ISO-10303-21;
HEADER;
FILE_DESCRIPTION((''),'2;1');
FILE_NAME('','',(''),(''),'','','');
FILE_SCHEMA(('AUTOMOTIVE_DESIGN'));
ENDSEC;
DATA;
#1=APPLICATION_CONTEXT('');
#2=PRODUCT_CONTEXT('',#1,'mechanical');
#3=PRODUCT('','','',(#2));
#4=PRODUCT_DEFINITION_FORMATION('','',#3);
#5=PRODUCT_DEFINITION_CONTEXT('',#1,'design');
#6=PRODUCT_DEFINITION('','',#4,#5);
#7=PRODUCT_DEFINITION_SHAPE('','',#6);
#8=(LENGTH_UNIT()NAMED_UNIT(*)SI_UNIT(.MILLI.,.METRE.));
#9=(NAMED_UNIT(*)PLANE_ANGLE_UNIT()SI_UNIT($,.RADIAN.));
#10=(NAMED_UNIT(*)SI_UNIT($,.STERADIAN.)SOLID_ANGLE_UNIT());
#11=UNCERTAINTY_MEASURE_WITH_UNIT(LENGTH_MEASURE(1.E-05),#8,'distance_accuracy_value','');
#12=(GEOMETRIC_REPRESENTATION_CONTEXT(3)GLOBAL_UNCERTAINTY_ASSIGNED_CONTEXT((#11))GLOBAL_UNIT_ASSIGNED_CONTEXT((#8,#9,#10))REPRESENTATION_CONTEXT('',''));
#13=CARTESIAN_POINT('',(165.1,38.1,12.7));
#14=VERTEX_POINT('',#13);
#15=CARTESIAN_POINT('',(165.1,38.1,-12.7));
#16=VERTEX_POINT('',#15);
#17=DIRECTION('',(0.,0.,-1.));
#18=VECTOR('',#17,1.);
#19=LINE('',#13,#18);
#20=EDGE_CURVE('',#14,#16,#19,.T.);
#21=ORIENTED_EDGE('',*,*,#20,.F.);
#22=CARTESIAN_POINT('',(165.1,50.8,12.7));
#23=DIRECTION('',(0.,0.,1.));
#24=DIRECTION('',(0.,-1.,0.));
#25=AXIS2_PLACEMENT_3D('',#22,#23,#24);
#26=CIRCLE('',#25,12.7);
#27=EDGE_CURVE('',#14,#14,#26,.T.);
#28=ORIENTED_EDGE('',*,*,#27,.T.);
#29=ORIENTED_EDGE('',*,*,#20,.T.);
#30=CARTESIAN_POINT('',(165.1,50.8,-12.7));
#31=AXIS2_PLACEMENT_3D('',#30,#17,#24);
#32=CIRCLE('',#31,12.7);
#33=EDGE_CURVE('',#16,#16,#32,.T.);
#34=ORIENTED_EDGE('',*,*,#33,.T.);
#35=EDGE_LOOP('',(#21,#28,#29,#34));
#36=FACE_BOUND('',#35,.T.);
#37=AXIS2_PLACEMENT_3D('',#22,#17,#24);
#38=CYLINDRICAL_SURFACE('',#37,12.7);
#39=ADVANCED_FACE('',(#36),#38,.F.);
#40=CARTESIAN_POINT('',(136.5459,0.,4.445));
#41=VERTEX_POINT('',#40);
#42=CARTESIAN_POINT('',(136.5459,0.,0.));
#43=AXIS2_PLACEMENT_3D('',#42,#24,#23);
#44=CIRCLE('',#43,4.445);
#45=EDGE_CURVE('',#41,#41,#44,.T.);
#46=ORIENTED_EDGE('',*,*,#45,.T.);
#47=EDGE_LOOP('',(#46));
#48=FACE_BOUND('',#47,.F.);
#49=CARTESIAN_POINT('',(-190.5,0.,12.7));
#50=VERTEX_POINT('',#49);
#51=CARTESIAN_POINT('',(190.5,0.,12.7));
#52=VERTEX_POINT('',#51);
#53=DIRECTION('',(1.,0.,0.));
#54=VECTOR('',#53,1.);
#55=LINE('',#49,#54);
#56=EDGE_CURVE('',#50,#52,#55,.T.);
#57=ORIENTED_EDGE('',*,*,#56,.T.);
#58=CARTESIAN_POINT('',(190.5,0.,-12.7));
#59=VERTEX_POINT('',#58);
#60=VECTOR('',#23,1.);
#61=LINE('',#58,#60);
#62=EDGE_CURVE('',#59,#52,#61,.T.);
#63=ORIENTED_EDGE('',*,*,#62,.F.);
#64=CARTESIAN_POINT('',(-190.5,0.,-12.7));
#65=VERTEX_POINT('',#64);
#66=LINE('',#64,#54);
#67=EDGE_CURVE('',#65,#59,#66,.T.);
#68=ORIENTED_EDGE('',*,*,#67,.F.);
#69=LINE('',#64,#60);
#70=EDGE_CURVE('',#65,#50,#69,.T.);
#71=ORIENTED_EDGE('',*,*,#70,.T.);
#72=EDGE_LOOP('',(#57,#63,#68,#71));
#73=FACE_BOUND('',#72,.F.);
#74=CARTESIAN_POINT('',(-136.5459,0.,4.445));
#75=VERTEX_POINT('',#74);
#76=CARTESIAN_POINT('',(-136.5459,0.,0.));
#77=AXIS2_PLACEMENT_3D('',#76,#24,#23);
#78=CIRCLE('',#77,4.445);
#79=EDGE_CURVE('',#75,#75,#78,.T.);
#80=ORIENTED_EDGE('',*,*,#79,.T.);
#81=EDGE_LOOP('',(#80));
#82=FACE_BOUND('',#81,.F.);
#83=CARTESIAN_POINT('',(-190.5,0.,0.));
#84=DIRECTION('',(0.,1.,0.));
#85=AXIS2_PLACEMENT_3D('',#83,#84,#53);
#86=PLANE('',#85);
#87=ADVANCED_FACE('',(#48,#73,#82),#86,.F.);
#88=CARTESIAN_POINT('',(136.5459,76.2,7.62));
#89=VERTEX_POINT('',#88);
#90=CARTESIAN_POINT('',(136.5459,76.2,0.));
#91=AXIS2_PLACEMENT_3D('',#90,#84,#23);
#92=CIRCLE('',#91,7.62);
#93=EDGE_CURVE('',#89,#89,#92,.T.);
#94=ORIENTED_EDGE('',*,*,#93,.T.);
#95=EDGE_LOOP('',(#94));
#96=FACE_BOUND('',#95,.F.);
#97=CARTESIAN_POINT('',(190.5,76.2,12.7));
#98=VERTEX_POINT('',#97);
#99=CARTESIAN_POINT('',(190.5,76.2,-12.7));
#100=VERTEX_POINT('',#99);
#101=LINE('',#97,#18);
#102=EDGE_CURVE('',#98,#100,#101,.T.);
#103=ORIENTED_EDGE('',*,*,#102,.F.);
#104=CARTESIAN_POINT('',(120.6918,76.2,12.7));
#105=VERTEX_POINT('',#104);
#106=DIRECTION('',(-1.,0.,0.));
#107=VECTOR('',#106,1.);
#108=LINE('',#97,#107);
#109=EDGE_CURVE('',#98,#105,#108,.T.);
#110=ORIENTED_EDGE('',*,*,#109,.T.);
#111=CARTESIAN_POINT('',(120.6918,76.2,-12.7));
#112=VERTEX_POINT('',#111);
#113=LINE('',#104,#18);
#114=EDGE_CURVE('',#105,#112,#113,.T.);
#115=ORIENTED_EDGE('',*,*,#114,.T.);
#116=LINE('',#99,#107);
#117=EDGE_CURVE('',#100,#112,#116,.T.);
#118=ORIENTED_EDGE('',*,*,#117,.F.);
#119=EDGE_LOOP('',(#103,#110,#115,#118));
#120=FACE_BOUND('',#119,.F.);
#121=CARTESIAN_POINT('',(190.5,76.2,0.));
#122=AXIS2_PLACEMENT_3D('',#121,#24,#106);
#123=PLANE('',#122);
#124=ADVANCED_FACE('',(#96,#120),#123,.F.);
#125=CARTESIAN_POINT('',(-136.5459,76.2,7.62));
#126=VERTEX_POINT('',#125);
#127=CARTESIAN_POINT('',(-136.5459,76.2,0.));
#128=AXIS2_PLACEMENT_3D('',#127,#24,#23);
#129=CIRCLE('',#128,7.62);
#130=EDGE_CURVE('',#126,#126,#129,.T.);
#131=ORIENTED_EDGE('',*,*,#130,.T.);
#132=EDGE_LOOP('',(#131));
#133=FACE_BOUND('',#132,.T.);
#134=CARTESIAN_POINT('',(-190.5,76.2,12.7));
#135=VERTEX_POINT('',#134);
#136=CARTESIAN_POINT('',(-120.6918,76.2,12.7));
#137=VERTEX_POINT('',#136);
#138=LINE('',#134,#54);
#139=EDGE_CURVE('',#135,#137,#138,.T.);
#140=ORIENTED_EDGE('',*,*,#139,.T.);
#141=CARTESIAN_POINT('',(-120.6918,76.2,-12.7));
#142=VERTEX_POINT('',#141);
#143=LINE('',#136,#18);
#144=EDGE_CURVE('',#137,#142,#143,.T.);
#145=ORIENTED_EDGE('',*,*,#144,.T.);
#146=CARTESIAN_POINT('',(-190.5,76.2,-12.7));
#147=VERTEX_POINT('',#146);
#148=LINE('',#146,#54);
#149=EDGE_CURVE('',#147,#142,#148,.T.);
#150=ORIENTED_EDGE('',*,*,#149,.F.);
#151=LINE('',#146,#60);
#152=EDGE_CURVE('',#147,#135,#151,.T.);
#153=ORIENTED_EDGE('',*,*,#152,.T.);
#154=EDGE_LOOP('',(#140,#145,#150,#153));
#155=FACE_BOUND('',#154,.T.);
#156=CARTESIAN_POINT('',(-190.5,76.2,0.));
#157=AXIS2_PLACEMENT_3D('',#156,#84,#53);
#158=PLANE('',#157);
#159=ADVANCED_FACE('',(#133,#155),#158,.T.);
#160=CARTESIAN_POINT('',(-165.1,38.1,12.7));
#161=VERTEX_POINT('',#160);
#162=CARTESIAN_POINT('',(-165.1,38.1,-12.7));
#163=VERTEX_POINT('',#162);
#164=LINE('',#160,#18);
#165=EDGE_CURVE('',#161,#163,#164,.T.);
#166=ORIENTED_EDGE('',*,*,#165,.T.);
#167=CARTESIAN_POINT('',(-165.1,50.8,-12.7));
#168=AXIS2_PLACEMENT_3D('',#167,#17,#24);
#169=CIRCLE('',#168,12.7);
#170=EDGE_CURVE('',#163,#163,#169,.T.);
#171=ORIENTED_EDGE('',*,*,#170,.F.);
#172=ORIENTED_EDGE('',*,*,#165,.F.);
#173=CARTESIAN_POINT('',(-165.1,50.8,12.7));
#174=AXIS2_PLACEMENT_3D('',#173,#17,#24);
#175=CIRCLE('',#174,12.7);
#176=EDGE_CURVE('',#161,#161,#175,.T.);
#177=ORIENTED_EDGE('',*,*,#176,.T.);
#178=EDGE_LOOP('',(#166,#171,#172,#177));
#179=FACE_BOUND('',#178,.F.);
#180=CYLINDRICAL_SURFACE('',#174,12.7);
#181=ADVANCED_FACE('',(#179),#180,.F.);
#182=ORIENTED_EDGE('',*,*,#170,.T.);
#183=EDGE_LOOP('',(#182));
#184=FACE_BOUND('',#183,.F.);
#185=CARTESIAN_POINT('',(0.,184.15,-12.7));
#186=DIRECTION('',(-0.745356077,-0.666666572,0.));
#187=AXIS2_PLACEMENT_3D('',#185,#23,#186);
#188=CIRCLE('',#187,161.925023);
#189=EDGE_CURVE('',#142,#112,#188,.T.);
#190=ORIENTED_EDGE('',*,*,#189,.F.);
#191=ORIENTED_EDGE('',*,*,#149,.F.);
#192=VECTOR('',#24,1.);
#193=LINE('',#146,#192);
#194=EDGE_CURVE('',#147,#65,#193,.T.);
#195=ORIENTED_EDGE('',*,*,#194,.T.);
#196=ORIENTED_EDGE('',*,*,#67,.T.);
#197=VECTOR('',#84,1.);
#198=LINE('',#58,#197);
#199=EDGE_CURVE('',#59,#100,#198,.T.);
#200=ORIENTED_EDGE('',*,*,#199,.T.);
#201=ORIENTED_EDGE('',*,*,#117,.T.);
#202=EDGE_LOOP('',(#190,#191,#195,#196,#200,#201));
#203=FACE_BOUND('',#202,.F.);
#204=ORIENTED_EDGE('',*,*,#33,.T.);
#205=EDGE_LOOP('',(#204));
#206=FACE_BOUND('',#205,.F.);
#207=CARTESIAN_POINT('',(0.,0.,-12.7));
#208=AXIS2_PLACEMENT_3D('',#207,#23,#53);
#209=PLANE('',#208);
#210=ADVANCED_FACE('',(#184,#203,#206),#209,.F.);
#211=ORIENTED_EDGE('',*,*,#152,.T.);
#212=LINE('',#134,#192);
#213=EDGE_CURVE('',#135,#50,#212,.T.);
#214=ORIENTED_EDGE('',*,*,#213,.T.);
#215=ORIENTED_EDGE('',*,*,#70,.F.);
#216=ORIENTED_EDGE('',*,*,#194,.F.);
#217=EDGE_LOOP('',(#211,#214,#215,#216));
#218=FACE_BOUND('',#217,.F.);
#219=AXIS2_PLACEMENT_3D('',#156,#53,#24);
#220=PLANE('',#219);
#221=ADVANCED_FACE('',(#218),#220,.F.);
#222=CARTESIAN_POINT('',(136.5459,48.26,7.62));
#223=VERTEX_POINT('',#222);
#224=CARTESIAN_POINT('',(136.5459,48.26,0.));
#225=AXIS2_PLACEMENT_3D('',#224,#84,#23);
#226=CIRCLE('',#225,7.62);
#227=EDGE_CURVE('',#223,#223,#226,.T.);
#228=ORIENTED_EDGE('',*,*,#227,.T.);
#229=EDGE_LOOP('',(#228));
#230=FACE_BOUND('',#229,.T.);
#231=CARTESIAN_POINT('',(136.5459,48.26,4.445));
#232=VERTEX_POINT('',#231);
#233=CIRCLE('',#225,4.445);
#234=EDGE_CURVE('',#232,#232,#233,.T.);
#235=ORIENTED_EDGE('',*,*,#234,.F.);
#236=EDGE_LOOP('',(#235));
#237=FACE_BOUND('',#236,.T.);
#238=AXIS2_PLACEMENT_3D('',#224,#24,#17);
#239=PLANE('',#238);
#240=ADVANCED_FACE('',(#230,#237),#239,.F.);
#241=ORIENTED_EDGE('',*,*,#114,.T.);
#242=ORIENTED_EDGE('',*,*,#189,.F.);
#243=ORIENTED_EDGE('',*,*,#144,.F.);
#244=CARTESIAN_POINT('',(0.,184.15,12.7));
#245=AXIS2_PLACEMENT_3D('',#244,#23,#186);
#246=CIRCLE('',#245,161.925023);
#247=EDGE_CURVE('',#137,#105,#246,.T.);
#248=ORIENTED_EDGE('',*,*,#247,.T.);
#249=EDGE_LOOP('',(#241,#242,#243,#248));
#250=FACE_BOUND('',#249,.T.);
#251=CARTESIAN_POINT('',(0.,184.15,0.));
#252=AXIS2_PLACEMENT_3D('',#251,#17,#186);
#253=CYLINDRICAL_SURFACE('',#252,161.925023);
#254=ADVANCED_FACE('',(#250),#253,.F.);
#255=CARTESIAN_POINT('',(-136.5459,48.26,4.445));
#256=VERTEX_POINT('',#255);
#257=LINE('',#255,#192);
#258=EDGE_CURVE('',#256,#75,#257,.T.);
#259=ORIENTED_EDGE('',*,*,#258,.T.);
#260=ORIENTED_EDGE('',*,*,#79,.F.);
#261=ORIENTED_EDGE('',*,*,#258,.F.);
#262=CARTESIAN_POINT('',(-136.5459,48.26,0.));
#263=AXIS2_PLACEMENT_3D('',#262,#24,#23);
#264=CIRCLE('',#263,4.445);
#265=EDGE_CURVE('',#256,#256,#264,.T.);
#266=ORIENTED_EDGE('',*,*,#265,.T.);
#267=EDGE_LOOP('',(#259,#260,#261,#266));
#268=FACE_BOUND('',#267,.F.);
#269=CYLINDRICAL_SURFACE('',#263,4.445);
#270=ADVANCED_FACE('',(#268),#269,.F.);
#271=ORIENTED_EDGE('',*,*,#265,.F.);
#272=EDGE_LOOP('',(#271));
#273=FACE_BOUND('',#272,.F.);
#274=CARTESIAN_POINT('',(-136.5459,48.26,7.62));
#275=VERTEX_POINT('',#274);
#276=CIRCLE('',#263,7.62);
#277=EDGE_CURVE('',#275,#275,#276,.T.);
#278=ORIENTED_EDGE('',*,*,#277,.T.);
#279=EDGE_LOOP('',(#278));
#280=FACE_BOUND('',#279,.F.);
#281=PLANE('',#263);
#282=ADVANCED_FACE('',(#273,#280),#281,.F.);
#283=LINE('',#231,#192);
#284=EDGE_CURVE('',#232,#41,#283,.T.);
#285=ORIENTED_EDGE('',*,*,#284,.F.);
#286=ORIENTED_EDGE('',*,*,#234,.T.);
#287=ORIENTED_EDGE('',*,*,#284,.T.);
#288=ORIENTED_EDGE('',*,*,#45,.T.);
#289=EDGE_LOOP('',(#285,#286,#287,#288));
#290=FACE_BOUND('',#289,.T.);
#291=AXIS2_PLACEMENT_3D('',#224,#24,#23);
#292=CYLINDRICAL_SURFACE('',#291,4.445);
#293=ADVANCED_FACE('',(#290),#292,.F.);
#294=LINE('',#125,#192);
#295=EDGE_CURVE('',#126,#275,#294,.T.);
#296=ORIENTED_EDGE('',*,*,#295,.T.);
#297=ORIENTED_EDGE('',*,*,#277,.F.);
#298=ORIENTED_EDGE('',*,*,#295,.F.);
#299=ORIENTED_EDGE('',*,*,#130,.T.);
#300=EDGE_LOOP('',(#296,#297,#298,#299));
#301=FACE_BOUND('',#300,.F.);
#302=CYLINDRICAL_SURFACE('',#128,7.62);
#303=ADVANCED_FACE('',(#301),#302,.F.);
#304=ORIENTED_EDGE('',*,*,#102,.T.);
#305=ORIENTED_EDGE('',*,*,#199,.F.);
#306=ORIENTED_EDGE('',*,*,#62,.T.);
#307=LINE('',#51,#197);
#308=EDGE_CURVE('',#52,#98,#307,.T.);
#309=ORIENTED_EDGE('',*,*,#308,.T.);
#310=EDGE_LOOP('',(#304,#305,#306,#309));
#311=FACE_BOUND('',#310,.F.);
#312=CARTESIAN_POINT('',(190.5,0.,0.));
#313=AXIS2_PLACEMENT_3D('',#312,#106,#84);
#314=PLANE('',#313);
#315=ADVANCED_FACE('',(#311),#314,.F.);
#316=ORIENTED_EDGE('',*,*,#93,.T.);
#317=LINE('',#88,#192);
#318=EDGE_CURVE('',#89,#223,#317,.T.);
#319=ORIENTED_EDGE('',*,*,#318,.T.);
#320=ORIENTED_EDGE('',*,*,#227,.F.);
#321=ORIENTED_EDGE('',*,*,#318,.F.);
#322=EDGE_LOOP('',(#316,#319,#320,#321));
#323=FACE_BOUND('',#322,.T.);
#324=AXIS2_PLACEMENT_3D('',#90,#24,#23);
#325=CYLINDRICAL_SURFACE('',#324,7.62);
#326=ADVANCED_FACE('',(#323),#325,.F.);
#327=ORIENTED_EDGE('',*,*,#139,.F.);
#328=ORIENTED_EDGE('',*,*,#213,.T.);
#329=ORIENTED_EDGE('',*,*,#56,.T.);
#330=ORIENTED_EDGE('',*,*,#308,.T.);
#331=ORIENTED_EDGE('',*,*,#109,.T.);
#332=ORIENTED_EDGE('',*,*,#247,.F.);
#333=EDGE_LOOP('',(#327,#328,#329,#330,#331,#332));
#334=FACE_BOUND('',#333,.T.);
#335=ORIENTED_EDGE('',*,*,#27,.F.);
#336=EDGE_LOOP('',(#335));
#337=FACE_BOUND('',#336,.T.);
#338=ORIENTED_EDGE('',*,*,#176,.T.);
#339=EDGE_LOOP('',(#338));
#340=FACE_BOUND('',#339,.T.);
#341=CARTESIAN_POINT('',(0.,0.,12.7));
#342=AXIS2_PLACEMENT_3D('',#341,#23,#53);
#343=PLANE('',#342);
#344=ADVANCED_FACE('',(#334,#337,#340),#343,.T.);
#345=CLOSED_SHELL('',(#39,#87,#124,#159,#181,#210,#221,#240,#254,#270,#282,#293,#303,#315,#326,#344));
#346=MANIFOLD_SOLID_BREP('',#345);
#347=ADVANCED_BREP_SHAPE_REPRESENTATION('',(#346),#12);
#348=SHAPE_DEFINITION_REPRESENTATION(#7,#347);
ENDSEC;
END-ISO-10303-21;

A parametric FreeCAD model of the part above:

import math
import FreeCAD as App
import Part
import Sketcher
Q = App.Units.Quantity

doc = App.newDocument("Part")
body = doc.addObject("PartDesign::Body", "Body")

# Sketch on XY plane
sketch1 = doc.addObject("Sketcher::SketchObject", "Sketch")
body.addObject(sketch1)
sketch1.AttachmentSupport = (doc.XY_Plane, [""])
sketch1.MapMode = "FlatFace"
sketch1.addGeometry([
    Part.LineSegment(App.Vector(-121, 76, 0), App.Vector(-190, 76, 0)),  # 0
    Part.LineSegment(App.Vector(-190, 76, 0), App.Vector(-190, 0, 0)),  # 1
    Part.LineSegment(App.Vector(-190, 0, 0), App.Vector(190, 0, 0)),  # 2
    Part.LineSegment(App.Vector(190, 0, 0), App.Vector(190, 76, 0)),  # 3
    Part.LineSegment(App.Vector(190, 76, 0), App.Vector(121, 76, 0)),  # 4
    Part.ArcOfCircle(Part.Circle(App.Vector(0, 184, 0), App.Vector(0, 0, 1), 162), math.radians(-138), math.radians(-42)),  # 5
], False)
sketch1.addConstraint([
    Sketcher.Constraint("Coincident", 0, 2, 1, 1),
    Sketcher.Constraint("Coincident", 1, 2, 2, 1),
    Sketcher.Constraint("Coincident", 2, 2, 3, 1),
    Sketcher.Constraint("Coincident", 3, 2, 4, 1),
    Sketcher.Constraint("Coincident", 4, 2, 5, 2),
    Sketcher.Constraint("Coincident", 5, 1, 0, 1),
    Sketcher.Constraint("Horizontal", 0),
    Sketcher.Constraint("Vertical", 1),
    Sketcher.Constraint("Horizontal", 2),
    Sketcher.Constraint("Vertical", 3),
    Sketcher.Constraint("Horizontal", 4),
    Sketcher.Constraint("Symmetric", 1, 2, 2, 2, -1, 1),
    Sketcher.Constraint("Symmetric", 4, 2, 5, 1, -2),
    Sketcher.Constraint("DistanceX", 2, 1, 2, 2, Q("15 in")),
    Sketcher.Constraint("DistanceY", 1, 2, 1, 1, Q("3 in")),
    Sketcher.Constraint("Radius", 5, Q("6.375 in")),
    Sketcher.Constraint("DistanceY", -1, 1, 5, 3, Q("7.25 in")),
])
pad1 = doc.addObject("PartDesign::Pad", "Pad")
body.addObject(pad1)
pad1.Profile = sketch1
pad1.Length = Q("1 in")
pad1.Midplane = True

# Sketch on XZ plane
sketch2 = doc.addObject("Sketcher::SketchObject", "Sketch001")
body.addObject(sketch2)
sketch2.AttachmentSupport = (doc.XZ_Plane, [""])
sketch2.MapMode = "FlatFace"
sketch2.AttachmentOffset = App.Placement(App.Vector(0, 0, -3 * 25.4), App.Rotation())
sketch2.addGeometry(Part.Circle(App.Vector(-136.5, 0, 0), App.Vector(0, 0, 1), 4.4), False)
sketch2.addConstraint([
    Sketcher.Constraint("PointOnObject", 0, 3, -1),
    Sketcher.Constraint("Diameter", 0, Q("0.35 in")),
    Sketcher.Constraint("DistanceX", 0, 3, -1, 1, Q("136.546 mm")),
])
doc.recompute()
hole = doc.addObject("PartDesign::Hole", "Hole")
body.addObject(hole)
hole.Profile = sketch2
hole.ThreadType = "None"
hole.Diameter = Q("0.35 in")
hole.DepthType = "ThroughAll"
hole.HoleCutType = "Counterbore"
hole.HoleCutDiameter = Q("0.6 in")
hole.HoleCutDepth = Q("1.1 in")
hole.Reversed = True

# Sketch on XY plane
sketch3 = doc.addObject("Sketcher::SketchObject", "Sketch002")
body.addObject(sketch3)
sketch3.AttachmentSupport = (doc.XY_Plane, [""])
sketch3.MapMode = "FlatFace"
sketch3.AttachmentOffset = App.Placement(App.Vector(0, 0, 0.5 * 25.4), App.Rotation())
sketch3.addGeometry(Part.Circle(App.Vector(-165, 51, 0), App.Vector(0, 0, 1), 13), False)
sketch3.addConstraint([
    Sketcher.Constraint("Diameter", 0, Q("1 in")),
    Sketcher.Constraint("DistanceY", -1, 1, 0, 3, Q("2 in")),
    Sketcher.Constraint("DistanceX", 0, 3, -1, 1, Q("6.5 in")),
])
doc.recompute()
hole2 = doc.addObject("PartDesign::Hole", "Hole001")
body.addObject(hole2)
hole2.Profile = sketch3
hole2.ThreadType = "None"
hole2.Diameter = Q("1 in")
hole2.DepthType = "ThroughAll"
doc.recompute()

mirrored = doc.addObject("PartDesign::Mirrored", "Mirrored")
body.addObject(mirrored)
mirrored.Originals = [hole, hole2]
mirrored.MirrorPlane = (doc.YZ_Plane, [""])
body.Tip = mirrored

doc.recompute()
